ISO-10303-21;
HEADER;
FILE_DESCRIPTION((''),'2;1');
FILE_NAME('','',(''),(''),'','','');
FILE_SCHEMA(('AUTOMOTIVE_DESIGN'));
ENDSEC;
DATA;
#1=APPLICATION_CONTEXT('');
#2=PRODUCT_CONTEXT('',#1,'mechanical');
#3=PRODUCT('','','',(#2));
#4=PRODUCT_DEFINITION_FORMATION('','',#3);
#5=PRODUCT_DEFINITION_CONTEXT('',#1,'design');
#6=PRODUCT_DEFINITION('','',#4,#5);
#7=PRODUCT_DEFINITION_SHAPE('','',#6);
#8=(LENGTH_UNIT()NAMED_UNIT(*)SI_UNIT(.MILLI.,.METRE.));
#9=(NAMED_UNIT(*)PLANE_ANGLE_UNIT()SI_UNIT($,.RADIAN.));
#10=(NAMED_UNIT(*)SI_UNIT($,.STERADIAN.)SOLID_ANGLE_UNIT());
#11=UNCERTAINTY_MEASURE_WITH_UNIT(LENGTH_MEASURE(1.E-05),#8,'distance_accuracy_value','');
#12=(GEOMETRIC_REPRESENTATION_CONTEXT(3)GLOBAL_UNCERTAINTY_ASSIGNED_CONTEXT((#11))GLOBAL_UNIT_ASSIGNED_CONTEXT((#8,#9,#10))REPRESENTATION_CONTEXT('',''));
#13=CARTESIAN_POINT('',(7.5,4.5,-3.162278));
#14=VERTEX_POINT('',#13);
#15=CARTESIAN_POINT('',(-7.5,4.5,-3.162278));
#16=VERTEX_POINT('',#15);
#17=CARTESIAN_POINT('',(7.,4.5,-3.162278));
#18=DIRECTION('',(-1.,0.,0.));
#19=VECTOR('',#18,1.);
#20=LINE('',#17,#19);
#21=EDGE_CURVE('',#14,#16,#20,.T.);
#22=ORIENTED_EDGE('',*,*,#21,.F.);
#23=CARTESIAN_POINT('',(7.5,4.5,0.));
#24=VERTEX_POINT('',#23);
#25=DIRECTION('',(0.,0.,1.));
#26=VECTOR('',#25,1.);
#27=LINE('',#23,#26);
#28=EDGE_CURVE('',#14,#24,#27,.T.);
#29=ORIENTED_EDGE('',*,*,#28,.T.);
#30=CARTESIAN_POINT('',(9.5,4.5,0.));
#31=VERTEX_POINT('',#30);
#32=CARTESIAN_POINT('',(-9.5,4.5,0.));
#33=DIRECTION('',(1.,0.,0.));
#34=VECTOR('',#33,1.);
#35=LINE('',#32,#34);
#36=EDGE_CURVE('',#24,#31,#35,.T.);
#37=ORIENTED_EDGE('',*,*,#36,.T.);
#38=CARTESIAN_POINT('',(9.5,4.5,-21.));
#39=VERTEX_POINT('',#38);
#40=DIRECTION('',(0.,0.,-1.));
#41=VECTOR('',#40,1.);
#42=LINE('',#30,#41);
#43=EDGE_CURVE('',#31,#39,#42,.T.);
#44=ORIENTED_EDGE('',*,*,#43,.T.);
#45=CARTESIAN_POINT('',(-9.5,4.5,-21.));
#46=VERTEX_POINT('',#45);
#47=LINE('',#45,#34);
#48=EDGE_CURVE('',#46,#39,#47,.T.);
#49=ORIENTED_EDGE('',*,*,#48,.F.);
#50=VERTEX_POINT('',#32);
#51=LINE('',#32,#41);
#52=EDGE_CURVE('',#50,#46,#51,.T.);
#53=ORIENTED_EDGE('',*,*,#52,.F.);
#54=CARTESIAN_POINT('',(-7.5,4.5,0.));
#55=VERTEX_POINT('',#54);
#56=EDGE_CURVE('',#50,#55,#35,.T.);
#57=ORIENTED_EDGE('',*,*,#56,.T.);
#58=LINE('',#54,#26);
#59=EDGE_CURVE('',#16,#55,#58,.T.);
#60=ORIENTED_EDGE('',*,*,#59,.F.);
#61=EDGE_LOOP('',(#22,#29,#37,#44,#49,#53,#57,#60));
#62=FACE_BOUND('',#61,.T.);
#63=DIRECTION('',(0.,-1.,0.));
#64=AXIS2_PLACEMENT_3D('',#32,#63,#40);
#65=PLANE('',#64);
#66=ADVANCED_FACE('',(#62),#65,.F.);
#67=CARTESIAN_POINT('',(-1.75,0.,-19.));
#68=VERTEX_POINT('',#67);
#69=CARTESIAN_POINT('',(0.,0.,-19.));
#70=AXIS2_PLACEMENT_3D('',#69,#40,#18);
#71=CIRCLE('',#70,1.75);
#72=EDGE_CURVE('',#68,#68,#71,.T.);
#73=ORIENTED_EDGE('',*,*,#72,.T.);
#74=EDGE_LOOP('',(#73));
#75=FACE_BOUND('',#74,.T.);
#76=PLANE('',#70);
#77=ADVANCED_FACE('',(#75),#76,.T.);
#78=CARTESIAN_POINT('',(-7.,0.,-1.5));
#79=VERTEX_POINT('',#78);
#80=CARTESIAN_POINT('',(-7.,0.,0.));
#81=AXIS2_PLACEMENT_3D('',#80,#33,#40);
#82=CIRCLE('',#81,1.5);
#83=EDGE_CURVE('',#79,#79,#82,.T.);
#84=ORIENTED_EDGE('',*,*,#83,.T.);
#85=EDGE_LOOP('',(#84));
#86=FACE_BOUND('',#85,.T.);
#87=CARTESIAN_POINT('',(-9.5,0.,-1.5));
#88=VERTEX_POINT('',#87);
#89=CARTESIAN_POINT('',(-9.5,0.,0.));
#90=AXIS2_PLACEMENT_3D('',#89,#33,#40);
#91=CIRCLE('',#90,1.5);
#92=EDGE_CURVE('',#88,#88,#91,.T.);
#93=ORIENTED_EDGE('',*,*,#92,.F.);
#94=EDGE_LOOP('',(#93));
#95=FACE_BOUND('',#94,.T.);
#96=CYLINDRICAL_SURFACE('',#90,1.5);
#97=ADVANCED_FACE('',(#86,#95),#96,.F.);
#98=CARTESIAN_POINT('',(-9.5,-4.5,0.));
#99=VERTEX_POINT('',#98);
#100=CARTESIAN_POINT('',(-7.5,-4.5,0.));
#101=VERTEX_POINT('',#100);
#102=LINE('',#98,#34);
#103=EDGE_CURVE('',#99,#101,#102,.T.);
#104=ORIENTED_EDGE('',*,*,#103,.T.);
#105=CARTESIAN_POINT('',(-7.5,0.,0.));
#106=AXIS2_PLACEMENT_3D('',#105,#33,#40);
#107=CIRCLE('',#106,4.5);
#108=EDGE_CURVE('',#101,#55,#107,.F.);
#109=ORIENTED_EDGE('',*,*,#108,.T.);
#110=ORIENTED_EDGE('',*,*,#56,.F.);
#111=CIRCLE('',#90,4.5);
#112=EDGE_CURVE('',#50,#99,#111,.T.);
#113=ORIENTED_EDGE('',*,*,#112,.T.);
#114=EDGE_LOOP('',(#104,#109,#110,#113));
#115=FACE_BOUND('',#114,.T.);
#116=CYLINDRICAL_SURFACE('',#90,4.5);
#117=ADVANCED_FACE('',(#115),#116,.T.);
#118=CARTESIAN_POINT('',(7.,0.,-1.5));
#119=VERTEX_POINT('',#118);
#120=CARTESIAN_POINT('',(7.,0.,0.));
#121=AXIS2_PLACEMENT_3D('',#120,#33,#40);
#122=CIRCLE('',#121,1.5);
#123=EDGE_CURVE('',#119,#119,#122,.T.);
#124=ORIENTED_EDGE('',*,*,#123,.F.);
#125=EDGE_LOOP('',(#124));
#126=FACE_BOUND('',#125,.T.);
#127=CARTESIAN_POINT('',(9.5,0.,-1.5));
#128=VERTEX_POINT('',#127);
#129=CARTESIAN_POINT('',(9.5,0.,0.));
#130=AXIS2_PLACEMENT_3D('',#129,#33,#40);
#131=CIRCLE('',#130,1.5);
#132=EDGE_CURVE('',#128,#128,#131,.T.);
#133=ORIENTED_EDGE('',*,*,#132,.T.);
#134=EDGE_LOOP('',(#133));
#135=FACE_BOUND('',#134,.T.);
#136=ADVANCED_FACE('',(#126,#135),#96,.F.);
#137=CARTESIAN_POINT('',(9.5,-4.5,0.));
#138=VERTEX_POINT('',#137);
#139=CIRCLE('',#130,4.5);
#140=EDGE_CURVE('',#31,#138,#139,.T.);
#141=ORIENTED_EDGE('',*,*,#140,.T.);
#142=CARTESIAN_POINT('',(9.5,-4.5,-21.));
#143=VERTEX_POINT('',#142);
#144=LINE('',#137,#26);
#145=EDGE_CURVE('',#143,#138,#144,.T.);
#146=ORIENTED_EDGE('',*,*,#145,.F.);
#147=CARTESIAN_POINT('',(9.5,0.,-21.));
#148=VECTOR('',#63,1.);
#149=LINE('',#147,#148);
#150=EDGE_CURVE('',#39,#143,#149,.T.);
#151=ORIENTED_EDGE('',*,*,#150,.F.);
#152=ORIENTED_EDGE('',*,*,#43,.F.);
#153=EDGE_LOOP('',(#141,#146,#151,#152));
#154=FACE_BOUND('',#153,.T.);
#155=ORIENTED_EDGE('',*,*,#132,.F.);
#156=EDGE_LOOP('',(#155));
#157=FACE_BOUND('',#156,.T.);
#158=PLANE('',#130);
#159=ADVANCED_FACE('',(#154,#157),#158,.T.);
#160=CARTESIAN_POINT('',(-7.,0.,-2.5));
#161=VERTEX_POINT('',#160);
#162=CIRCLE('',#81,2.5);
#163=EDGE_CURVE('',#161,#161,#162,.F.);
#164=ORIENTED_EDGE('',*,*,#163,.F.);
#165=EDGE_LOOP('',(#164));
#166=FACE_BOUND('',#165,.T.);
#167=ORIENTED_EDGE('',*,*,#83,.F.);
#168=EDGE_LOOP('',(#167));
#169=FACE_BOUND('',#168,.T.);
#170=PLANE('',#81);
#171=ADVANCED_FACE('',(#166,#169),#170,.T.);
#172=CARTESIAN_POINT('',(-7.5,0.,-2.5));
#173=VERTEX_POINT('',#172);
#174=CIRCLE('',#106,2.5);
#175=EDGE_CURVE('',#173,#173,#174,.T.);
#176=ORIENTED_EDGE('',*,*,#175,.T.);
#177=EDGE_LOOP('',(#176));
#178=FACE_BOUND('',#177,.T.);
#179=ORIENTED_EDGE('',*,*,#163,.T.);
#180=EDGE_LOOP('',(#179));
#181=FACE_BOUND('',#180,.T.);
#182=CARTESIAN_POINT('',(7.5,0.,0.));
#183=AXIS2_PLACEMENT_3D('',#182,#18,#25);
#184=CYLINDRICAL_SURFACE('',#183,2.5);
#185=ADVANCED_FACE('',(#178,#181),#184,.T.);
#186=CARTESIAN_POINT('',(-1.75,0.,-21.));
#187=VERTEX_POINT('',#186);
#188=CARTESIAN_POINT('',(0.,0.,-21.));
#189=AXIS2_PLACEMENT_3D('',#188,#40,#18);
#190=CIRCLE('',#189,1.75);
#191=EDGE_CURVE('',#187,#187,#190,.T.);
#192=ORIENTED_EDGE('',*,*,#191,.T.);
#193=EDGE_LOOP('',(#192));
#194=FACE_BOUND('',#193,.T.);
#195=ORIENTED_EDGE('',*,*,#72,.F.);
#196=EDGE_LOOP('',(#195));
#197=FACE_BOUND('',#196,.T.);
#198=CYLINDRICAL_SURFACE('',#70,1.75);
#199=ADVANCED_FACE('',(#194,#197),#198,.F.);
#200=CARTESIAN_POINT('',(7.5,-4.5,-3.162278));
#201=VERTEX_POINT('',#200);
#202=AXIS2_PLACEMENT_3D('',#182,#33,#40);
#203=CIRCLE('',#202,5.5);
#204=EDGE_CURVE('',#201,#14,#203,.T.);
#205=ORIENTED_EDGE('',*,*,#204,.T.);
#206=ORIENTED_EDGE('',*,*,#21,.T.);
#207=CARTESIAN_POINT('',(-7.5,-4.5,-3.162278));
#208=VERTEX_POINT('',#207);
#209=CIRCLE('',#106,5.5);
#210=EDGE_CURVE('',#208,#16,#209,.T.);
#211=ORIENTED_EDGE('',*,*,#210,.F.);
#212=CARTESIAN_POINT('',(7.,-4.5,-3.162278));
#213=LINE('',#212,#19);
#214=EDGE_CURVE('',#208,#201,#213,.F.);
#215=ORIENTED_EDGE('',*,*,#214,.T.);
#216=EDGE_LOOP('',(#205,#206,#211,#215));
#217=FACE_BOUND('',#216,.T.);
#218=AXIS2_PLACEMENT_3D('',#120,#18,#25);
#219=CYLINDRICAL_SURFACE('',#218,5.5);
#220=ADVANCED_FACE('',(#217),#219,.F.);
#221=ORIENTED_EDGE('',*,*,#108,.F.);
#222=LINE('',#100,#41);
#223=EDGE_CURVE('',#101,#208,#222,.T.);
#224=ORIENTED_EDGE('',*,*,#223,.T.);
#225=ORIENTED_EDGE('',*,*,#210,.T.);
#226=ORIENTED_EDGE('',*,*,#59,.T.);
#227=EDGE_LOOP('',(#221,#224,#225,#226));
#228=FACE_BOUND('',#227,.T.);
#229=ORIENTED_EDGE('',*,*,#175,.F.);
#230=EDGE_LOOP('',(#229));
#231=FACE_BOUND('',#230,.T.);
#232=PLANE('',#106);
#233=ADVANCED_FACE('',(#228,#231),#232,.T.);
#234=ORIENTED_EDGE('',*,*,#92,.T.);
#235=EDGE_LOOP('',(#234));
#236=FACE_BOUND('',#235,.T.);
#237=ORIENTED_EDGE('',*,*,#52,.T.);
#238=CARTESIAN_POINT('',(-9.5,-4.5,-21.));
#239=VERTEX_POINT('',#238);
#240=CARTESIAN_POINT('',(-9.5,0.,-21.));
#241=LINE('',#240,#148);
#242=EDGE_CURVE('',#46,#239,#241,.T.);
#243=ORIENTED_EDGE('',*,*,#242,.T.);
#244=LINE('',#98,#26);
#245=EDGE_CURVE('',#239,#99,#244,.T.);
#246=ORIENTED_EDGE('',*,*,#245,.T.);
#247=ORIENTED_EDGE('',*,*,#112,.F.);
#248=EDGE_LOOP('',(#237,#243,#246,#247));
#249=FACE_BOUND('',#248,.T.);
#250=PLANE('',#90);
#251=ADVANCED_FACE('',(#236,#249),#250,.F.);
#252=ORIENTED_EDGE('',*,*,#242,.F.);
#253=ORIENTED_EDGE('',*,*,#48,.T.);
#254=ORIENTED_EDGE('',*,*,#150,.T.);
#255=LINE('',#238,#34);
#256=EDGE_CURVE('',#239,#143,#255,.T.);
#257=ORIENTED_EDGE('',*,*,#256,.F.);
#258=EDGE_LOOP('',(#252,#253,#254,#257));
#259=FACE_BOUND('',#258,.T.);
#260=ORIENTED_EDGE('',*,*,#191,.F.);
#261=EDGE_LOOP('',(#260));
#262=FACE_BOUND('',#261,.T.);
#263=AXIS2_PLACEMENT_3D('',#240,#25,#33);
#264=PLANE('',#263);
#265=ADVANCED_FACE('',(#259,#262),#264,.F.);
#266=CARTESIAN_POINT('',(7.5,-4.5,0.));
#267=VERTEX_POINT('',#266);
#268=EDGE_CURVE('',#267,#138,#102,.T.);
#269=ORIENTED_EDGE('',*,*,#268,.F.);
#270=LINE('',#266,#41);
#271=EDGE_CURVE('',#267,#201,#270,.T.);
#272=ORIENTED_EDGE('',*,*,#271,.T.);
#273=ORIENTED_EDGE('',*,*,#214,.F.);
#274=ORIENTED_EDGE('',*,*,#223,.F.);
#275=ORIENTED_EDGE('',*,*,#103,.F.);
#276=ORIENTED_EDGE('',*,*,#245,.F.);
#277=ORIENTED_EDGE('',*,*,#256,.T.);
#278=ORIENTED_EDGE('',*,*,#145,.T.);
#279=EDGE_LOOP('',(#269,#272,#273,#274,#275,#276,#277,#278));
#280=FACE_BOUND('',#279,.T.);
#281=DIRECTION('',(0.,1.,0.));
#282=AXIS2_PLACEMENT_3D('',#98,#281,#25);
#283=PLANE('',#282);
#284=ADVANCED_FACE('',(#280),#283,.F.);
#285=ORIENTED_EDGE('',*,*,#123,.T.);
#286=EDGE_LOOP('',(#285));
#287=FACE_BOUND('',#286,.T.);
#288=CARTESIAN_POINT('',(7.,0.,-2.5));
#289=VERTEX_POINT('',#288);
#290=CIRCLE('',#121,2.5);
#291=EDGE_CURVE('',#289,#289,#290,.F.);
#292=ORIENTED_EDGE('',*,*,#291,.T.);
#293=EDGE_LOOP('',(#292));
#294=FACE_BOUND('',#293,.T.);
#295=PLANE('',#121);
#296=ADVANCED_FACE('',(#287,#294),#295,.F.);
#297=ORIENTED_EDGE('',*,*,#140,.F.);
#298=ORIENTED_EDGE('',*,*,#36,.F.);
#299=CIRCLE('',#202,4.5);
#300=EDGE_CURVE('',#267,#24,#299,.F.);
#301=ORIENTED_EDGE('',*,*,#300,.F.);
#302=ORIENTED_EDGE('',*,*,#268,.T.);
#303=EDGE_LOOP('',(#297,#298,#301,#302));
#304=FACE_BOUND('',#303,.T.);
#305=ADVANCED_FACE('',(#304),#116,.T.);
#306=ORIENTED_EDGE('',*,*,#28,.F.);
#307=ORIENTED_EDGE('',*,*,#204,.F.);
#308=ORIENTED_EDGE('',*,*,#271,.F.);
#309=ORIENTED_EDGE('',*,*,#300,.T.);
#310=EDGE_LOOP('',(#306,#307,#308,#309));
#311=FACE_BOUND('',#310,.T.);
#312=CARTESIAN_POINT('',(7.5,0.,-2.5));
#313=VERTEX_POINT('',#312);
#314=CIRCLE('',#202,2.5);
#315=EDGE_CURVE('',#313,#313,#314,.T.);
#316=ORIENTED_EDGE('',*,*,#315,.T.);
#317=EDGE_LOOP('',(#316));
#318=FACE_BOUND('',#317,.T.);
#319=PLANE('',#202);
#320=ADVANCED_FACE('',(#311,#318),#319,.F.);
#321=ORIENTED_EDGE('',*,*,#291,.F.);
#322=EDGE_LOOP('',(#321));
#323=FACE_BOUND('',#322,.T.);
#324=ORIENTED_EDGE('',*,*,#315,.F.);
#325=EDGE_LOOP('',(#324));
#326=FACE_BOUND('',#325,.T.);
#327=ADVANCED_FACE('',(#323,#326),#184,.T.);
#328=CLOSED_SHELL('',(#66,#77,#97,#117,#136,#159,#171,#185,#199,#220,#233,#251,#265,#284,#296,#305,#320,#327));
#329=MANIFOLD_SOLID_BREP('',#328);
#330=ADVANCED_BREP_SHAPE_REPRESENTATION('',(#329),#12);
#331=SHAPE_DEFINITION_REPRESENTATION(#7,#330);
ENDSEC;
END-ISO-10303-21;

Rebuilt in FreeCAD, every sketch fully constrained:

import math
import FreeCAD as App
import Part
import Sketcher
Q = App.Units.Quantity

doc = App.newDocument("Part")
body = doc.addObject("PartDesign::Body", "Body")

sketch1 = doc.addObject("Sketcher::SketchObject", "Sketch")
body.addObject(sketch1)
sketch1.AttachmentSupport = (doc.YZ_Plane, [""])
sketch1.MapMode = "FlatFace"
sketch1.addGeometry([
    Part.ArcOfCircle(Part.Circle(App.Vector(0, 0, 0), App.Vector(0, 0, 1), 4.5), math.radians(0), math.radians(180)),
    Part.LineSegment(App.Vector(-4.5, 0, 0), App.Vector(-4.5, -21, 0)),
    Part.LineSegment(App.Vector(-4.5, -21, 0), App.Vector(4.5, -21, 0)),
    Part.LineSegment(App.Vector(4.5, -21, 0), App.Vector(4.5, 0, 0)),
], False)
sketch1.addConstraint([
    Sketcher.Constraint("Tangent", 0, 2, 1, 1),
    Sketcher.Constraint("Coincident", 1, 2, 2, 1),
    Sketcher.Constraint("Coincident", 2, 2, 3, 1),
    Sketcher.Constraint("Tangent", 3, 2, 0, 1),
    Sketcher.Constraint("Vertical", 1),
    Sketcher.Constraint("Horizontal", 2),
    Sketcher.Constraint("Vertical", 3),
    Sketcher.Constraint("Coincident", 0, 3, -1, 1),
    Sketcher.Constraint("Radius", 0, Q("4.5 mm")),
    Sketcher.Constraint("DistanceY", 1, 2, 1, 1, Q("21 mm")),
])
pad1 = doc.addObject("PartDesign::Pad", "Pad")
body.addObject(pad1)
pad1.Profile = sketch1
pad1.Type = "TwoLengths"
pad1.Length = 9.5
pad1.Length2 = 9.5

sketch2 = doc.addObject("Sketcher::SketchObject", "Sketch001")
body.addObject(sketch2)
sketch2.AttachmentSupport = (doc.YZ_Plane, [""])
sketch2.MapMode = "FlatFace"
sketch2.addGeometry(Part.Circle(App.Vector(0, 0, 0), App.Vector(0, 0, 1), 5.5), False)
sketch2.addConstraint([
    Sketcher.Constraint("Coincident", 0, 3, -1, 1),
    Sketcher.Constraint("Diameter", 0, Q("11 mm")),
])
pocket1 = doc.addObject("PartDesign::Pocket", "Pocket")
body.addObject(pocket1)
pocket1.Profile = sketch2
pocket1.Type = "TwoLengths"
pocket1.Length = 7
pocket1.Length2 = 7
pocket1.Reversed = True

sketch3 = doc.addObject("Sketcher::SketchObject", "Sketch002")
body.addObject(sketch3)
sketch3.AttachmentSupport = (doc.YZ_Plane, [""])
sketch3.MapMode = "FlatFace"
sketch3.addGeometry(Part.Circle(App.Vector(0, 0, 0), App.Vector(0, 0, 1), 1.5), False)
sketch3.addConstraint([
    Sketcher.Constraint("Coincident", 0, 3, -1, 1),
    Sketcher.Constraint("Diameter", 0, Q("3 mm")),
])
pocket2 = doc.addObject("PartDesign::Pocket", "Pocket001")
body.addObject(pocket2)
pocket2.Profile = sketch3
pocket2.Type = "ThroughAll"
pocket2.Midplane = True

sketch4 = doc.addObject("Sketcher::SketchObject", "Sketch003")
body.addObject(sketch4)
sketch4.AttachmentSupport = (doc.YZ_Plane, [""])
sketch4.MapMode = "FlatFace"
sketch4.addGeometry([
    Part.Circle(App.Vector(0, 0, 0), App.Vector(0, 0, 1), 5.5),
    Part.Circle(App.Vector(0, 0, 0), App.Vector(0, 0, 1), 2.5),
], False)
sketch4.addConstraint([
    Sketcher.Constraint("Coincident", 0, 3, -1, 1),
    Sketcher.Constraint("Coincident", 1, 3, -1, 1),
    Sketcher.Constraint("Diameter", 0, Q("11 mm")),
    Sketcher.Constraint("Diameter", 1, Q("5 mm")),
])
pocket3 = doc.addObject("PartDesign::Pocket", "Pocket002")
body.addObject(pocket3)
pocket3.Profile = sketch4
pocket3.Type = "TwoLengths"
pocket3.Length = 7.5
pocket3.Length2 = 7.5
pocket3.Reversed = True

sketch5 = doc.addObject("Sketcher::SketchObject", "Sketch004")
body.addObject(sketch5)
sketch5.AttachmentSupport = (doc.XY_Plane, [""])
sketch5.MapMode = "FlatFace"
sketch5.AttachmentOffset = App.Placement(App.Vector(0, 0, -21), App.Rotation())
sketch5.addGeometry(Part.Circle(App.Vector(0, 0, 0), App.Vector(0, 0, 1), 1.75), False)
sketch5.addConstraint([
    Sketcher.Constraint("Coincident", 0, 3, -1, 1),
    Sketcher.Constraint("Diameter", 0, Q("3.5 mm")),
])
pocket4 = doc.addObject("PartDesign::Pocket", "Pocket003")
body.addObject(pocket4)
pocket4.Profile = sketch5
pocket4.Length = 2
pocket4.Reversed = True

doc.recompute()
